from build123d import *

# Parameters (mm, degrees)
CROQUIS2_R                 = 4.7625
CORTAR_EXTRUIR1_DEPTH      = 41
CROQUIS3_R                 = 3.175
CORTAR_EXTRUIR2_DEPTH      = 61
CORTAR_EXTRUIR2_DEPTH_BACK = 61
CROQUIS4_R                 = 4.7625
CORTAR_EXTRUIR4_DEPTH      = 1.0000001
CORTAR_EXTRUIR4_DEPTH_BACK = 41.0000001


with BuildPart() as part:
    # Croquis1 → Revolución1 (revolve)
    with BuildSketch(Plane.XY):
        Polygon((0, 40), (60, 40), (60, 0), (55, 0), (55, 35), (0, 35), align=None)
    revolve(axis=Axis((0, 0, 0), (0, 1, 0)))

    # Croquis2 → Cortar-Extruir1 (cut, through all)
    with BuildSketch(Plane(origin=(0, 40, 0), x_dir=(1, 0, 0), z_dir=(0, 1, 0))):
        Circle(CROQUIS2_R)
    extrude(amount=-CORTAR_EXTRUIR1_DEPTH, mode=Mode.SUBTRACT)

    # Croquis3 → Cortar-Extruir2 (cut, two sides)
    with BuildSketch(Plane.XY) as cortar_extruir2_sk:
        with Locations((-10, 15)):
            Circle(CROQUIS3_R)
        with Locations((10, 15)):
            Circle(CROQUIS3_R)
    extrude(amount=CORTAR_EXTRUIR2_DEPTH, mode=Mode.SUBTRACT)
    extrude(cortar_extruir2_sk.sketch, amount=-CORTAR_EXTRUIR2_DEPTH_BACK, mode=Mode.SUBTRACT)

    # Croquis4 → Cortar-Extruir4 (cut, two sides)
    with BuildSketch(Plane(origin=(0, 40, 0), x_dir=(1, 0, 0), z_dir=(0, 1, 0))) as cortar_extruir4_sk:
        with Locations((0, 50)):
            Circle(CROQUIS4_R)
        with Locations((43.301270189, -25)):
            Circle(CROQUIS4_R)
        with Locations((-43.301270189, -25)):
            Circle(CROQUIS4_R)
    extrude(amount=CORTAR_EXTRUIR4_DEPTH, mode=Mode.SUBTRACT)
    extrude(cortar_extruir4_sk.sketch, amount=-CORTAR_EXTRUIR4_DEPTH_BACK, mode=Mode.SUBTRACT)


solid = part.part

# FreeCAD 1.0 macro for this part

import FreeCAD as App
import Part
import Sketcher

V = App.Vector
Q = App.Units.Quantity

doc = App.newDocument("Part")
params = doc.addObject("Spreadsheet::Sheet", "Params")
for row, (alias, value) in enumerate([
    ("sketch1_width", "60 mm"),
    ("sketch1_width2", "55 mm"),
    ("sketch1_height", "35 mm"),
    ("revolution_angle", "360 deg"),
    ("sketch3_diameter", "6.35 mm"),
], start=1):
    params.set(f"A{row}", alias)
    params.set(f"B{row}", "=" + value)
    params.setAlias(f"B{row}", alias)

body = doc.addObject("PartDesign::Body", "Body")

sketch1 = doc.addObject("Sketcher::SketchObject", "Sketch")
body.addObject(sketch1)
sketch1.AttachmentSupport = (doc.XY_Plane, [""])
sketch1.MapMode = "FlatFace"
sketch1.addGeometry([
    Part.LineSegment(V(60, 40, 0), V(0, 40, 0)),
    Part.LineSegment(V(0, 40, 0), V(0, 35, 0)),
    Part.LineSegment(V(0, 35, 0), V(55, 35, 0)),
    Part.LineSegment(V(55, 35, 0), V(55, 0, 0)),
    Part.LineSegment(V(55, 0, 0), V(60, 0, 0)),
    Part.LineSegment(V(60, 0, 0), V(60, 40, 0)),
], False)
sketch1.addConstraint([
    Sketcher.Constraint("Coincident", 0, 2, 1, 1),
    Sketcher.Constraint("Coincident", 1, 2, 2, 1),
    Sketcher.Constraint("Coincident", 2, 2, 3, 1),
    Sketcher.Constraint("Coincident", 3, 2, 4, 1),
    Sketcher.Constraint("Coincident", 4, 2, 5, 1),
    Sketcher.Constraint("Coincident", 5, 2, 0, 1),
    Sketcher.Constraint("Horizontal", 0),
    Sketcher.Constraint("Vertical", 1),
    Sketcher.Constraint("Horizontal", 2),
    Sketcher.Constraint("Vertical", 3),
    Sketcher.Constraint("Horizontal", 4),
    Sketcher.Constraint("Vertical", 5),
    Sketcher.Constraint("PointOnObject", 0, 2, -2),
    Sketcher.Constraint("PointOnObject", 3, 2, -1),
    Sketcher.Constraint("Equal", 4, 1),
    Sketcher.Constraint("DistanceX", 0, 2, 0, 1, Q("60 mm")),
    Sketcher.Constraint("DistanceX", 2, 1, 2, 2, Q("55 mm")),
    Sketcher.Constraint("DistanceY", 3, 2, 3, 1, Q("35 mm")),
])
sketch1.setExpression("Constraints[15]", "Params.sketch1_width")
sketch1.setExpression("Constraints[16]", "Params.sketch1_width2")
sketch1.setExpression("Constraints[17]", "Params.sketch1_height")
revolution = doc.addObject("PartDesign::Revolution", "Revolution")
body.addObject(revolution)
revolution.Profile = sketch1
revolution.ReferenceAxis = (sketch1, ["V_Axis"])
revolution.setExpression("Angle", "Params.revolution_angle")

sketch2 = doc.addObject("Sketcher::SketchObject", "Sketch001")
body.addObject(sketch2)
sketch2.AttachmentSupport = (doc.XZ_Plane, [""])
sketch2.MapMode = "FlatFace"
sketch2.AttachmentOffset = App.Placement(V(0, 0, -40), App.Rotation())
sketch2.addGeometry(Part.Circle(V(0, 0, 0), V(0, 0, 1), 4.8), False)
sketch2.addConstraint([
    Sketcher.Constraint("Coincident", 0, 3, -1, 1),
    Sketcher.Constraint("Diameter", 0, Q("9.525 mm")),
])
pocket1 = doc.addObject("PartDesign::Pocket", "Pocket")
body.addObject(pocket1)
pocket1.Profile = sketch2
pocket1.Type = "ThroughAll"
pocket1.Reversed = True

sketch3 = doc.addObject("Sketcher::SketchObject", "Sketch002")
body.addObject(sketch3)
sketch3.AttachmentSupport = (doc.XY_Plane, [""])
sketch3.MapMode = "FlatFace"
sketch3.addGeometry([
    Part.Circle(V(-10, 15, 0), V(0, 0, 1), 3.2),
    Part.Circle(V(10, 15, 0), V(0, 0, 1), 3.2),
], False)
sketch3.addConstraint([
    Sketcher.Constraint("Equal", 0, 1),
    Sketcher.Constraint("Symmetric", 0, 3, 1, 3, -2),
    Sketcher.Constraint("Diameter", 0, Q("6.35 mm")),
    Sketcher.Constraint("DistanceX", 0, 3, -1, 1, Q("10 mm")),
    Sketcher.Constraint("DistanceY", -1, 1, 0, 3, Q("15 mm")),
])
sketch3.setExpression("Constraints[2]", "Params.sketch3_diameter")
pocket2 = doc.addObject("PartDesign::Pocket", "Pocket001")
body.addObject(pocket2)
pocket2.Profile = sketch3
pocket2.Type = "ThroughAll"
pocket2.Midplane = True

sketch4 = doc.addObject("Sketcher::SketchObject", "Sketch003")
body.addObject(sketch4)
sketch4.AttachmentSupport = (doc.XZ_Plane, [""])
sketch4.MapMode = "FlatFace"
sketch4.AttachmentOffset = App.Placement(V(0, 0, -40), App.Rotation())
sketch4.addGeometry([
    Part.Circle(V(0, -50, 0), V(0, 0, 1), 4.8),
    Part.Circle(V(43.3, 25, 0), V(0, 0, 1), 4.8),
    Part.Circle(V(-43.3, 25, 0), V(0, 0, 1), 4.8),
], False)
sketch4.addConstraint([
    Sketcher.Constraint("Equal", 0, 1),
    Sketcher.Constraint("Equal", 1, 2),
    Sketcher.Constraint("Symmetric", 1, 3, 2, 3, -2),
    Sketcher.Constraint("PointOnObject", 0, 3, -2),
    Sketcher.Constraint("Diameter", 0, Q("9.525 mm")),
    Sketcher.Constraint("DistanceY", 0, 3, -1, 1, Q("50 mm")),
    Sketcher.Constraint("DistanceY", -1, 1, 1, 3, Q("25 mm")),
    Sketcher.Constraint("DistanceX", -1, 1, 1, 3, Q("43.30127 mm")),
])
pocket3 = doc.addObject("PartDesign::Pocket", "Pocket002")
body.addObject(pocket3)
pocket3.Profile = sketch4
pocket3.Type = "ThroughAll"
pocket3.Midplane = True

doc.recompute()
